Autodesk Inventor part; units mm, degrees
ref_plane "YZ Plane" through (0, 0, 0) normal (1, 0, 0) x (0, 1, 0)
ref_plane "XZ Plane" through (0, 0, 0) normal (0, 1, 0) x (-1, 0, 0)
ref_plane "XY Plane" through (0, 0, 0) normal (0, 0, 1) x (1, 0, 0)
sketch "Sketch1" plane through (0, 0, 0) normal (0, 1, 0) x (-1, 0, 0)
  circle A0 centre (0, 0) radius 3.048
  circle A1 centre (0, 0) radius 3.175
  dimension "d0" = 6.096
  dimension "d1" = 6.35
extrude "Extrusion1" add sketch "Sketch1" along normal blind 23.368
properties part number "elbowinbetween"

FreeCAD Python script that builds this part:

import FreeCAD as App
import Part
import Sketcher
from FreeCAD import Vector
Q = App.Units.Quantity

doc = App.newDocument("Part")
body = doc.addObject("PartDesign::Body", "Body")

# Sketch on XZ plane
sketch1 = doc.addObject("Sketcher::SketchObject", "Sketch")
body.addObject(sketch1)
sketch1.AttachmentSupport = (doc.XZ_Plane, [""])
sketch1.MapMode = "FlatFace"
sketch1.addGeometry(Part.Circle(Vector(0, 0, 0), Vector(0, 0, 1), 3.2), False)
sketch1.addGeometry(Part.Circle(Vector(0, 0, 0), Vector(0, 0, 1), 3), False)
sketch1.addConstraint(Sketcher.Constraint("Coincident", 0, 3, -1, 1))
sketch1.addConstraint(Sketcher.Constraint("Coincident", 1, 3, -1, 1))
sketch1.addConstraint(Sketcher.Constraint("Diameter", 0, Q("0.25 in")))
sketch1.addConstraint(Sketcher.Constraint("Diameter", 1, Q("0.24 in")))
pad1 = doc.addObject("PartDesign::Pad", "Pad")
body.addObject(pad1)
pad1.Profile = sketch1
pad1.Length = Q("0.92 in")
pad1.Reversed = True

doc.recompute()
